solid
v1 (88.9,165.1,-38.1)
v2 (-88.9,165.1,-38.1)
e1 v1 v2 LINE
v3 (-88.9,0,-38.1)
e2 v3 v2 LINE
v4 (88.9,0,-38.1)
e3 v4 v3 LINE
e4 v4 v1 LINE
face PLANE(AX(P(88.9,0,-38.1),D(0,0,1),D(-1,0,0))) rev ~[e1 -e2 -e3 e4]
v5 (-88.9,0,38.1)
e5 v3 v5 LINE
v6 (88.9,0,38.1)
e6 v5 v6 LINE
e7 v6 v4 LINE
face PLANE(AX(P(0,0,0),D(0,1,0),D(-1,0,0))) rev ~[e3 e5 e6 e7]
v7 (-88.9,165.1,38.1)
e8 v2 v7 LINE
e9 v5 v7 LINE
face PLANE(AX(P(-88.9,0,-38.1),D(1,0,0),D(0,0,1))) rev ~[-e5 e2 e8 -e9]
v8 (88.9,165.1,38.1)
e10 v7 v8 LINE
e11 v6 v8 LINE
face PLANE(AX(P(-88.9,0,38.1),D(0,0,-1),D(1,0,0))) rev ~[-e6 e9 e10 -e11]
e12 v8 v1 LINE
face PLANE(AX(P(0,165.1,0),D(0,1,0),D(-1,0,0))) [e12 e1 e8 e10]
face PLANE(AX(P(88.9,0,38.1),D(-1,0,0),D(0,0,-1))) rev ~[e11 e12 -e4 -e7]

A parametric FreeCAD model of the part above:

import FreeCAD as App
import Part
import Sketcher

V = App.Vector
Q = App.Units.Quantity

doc = App.newDocument("Part")
body = doc.addObject("PartDesign::Body", "Body")

sketch1 = doc.addObject("Sketcher::SketchObject", "Sketch")
body.addObject(sketch1)
sketch1.AttachmentSupport = (doc.XZ_Plane, [""])
sketch1.MapMode = "FlatFace"
sketch1.addGeometry([
    Part.LineSegment(V(89, 38, 0), V(89, -38, 0)),
    Part.LineSegment(V(89, -38, 0), V(-89, -38, 0)),
    Part.LineSegment(V(-89, -38, 0), V(-89, 38, 0)),
    Part.LineSegment(V(-89, 38, 0), V(89, 38, 0)),
], False)
sketch1.addConstraint([
    Sketcher.Constraint("Coincident", 0, 2, 1, 1),
    Sketcher.Constraint("Coincident", 1, 2, 2, 1),
    Sketcher.Constraint("Coincident", 2, 2, 3, 1),
    Sketcher.Constraint("Coincident", 3, 2, 0, 1),
    Sketcher.Constraint("Vertical", 0),
    Sketcher.Constraint("Horizontal", 1),
    Sketcher.Constraint("Vertical", 2),
    Sketcher.Constraint("Horizontal", 3),
    Sketcher.Constraint("Symmetric", 0, 2, 2, 2, -1, 1),
    Sketcher.Constraint("DistanceX", 1, 2, 1, 1, Q("7 in")),
    Sketcher.Constraint("DistanceY", 0, 2, 0, 1, Q("3 in")),
])
pad1 = doc.addObject("PartDesign::Pad", "Pad")
body.addObject(pad1)
pad1.Profile = sketch1
pad1.Length = Q("6.5 in")
pad1.Reversed = True

doc.recompute()
